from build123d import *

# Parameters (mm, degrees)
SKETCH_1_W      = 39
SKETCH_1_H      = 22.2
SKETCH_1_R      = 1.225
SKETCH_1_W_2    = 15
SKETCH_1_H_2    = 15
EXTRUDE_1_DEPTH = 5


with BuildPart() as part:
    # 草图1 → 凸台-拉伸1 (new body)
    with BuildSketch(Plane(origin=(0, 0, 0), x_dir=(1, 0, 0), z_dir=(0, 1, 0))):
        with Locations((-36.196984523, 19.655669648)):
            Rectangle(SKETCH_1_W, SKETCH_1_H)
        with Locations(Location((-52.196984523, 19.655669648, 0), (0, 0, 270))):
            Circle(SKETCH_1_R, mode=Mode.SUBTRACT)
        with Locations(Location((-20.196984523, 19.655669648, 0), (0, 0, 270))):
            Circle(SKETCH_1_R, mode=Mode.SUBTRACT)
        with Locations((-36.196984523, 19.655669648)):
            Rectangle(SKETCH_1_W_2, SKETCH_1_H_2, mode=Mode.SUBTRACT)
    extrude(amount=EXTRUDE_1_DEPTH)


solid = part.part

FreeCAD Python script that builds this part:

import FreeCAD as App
import Part
import Sketcher
from FreeCAD import Vector


def add_polygon(sketch, points):
    """Adds a closed chain of lines whose ends are joined by coincident constraints."""
    first, n = sketch.GeometryCount, len(points)
    for a, b in zip(points, points[1:] + points[:1]):
        sketch.addGeometry(Part.LineSegment(App.Vector(*a, 0), App.Vector(*b, 0)), False)
    for i in range(n):
        sketch.addConstraint(Sketcher.Constraint("Coincident", first + i, 2, first + (i + 1) % n, 1))

doc = App.newDocument("Part")
body = doc.addObject("PartDesign::Body", "Body")

sketch1 = body.newObject("Sketcher::SketchObject", "Sketch")
sketch1.AttachmentSupport = (doc.getObject("XZ_Plane"), [""])
sketch1.MapMode = "FlatFace"
add_polygon(sketch1, [(-55.7, -30.8), (-55.7, -8.6), (-16.7, -8.6), (-16.7, -30.8)])
sketch1.addGeometry(Part.Circle(Vector(-52.2, -19.7, 0), Vector(0, 0, 1), 1.2), False)
add_polygon(sketch1, [(-28.7, -12.2), (-43.7, -12.2), (-43.7, -27.2), (-28.7, -27.2)])
sketch1.addGeometry(Part.Circle(Vector(-20.2, -19.7, 0), Vector(0, 0, 1), 1.2), False)
sketch1.addConstraint([
    Sketcher.Constraint("Vertical", 0),
    Sketcher.Constraint("Horizontal", 1),
    Sketcher.Constraint("Vertical", 2),
    Sketcher.Constraint("Horizontal", 3),
    Sketcher.Constraint("Horizontal", 5),
    Sketcher.Constraint("Vertical", 6),
    Sketcher.Constraint("Horizontal", 7),
    Sketcher.Constraint("Vertical", 8),
    Sketcher.Constraint("Equal", 4, 9),
    Sketcher.Constraint("Horizontal", 4, 3, 9, 3),
    Sketcher.Constraint("Equal", 7, 6),
    Sketcher.Constraint("Diameter", 4, 2.45),
    Sketcher.Constraint("DistanceX", 1, 1, 1, 2, 39.0),
    Sketcher.Constraint("DistanceX", 5, 2, 5, 1, 15.0),
    Sketcher.Constraint("DistanceY", 0, 1, 0, 2, 22.2),
    Sketcher.Constraint("DistanceX", 4, 3, 9, 3, 32.0),
    Sketcher.Constraint("DistanceX", 0, 2, 5, 2, 12.0),
    Sketcher.Constraint("DistanceX", 0, 2, 4, 3, 3.5),
    Sketcher.Constraint("DistanceY", 4, 3, 0, 2, 11.1),
    Sketcher.Constraint("DistanceY", 4, 3, 5, 2, 7.5),
    Sketcher.Constraint("DistanceY", 4, 3, -1, 1, 19.65567),
    Sketcher.Constraint("DistanceX", 4, 3, -1, 1, 52.196985),
])
pad1 = body.newObject("PartDesign::Pad", "Pad")
pad1.Profile = sketch1
pad1.Length = 5
pad1.Reversed = True

doc.recompute()
